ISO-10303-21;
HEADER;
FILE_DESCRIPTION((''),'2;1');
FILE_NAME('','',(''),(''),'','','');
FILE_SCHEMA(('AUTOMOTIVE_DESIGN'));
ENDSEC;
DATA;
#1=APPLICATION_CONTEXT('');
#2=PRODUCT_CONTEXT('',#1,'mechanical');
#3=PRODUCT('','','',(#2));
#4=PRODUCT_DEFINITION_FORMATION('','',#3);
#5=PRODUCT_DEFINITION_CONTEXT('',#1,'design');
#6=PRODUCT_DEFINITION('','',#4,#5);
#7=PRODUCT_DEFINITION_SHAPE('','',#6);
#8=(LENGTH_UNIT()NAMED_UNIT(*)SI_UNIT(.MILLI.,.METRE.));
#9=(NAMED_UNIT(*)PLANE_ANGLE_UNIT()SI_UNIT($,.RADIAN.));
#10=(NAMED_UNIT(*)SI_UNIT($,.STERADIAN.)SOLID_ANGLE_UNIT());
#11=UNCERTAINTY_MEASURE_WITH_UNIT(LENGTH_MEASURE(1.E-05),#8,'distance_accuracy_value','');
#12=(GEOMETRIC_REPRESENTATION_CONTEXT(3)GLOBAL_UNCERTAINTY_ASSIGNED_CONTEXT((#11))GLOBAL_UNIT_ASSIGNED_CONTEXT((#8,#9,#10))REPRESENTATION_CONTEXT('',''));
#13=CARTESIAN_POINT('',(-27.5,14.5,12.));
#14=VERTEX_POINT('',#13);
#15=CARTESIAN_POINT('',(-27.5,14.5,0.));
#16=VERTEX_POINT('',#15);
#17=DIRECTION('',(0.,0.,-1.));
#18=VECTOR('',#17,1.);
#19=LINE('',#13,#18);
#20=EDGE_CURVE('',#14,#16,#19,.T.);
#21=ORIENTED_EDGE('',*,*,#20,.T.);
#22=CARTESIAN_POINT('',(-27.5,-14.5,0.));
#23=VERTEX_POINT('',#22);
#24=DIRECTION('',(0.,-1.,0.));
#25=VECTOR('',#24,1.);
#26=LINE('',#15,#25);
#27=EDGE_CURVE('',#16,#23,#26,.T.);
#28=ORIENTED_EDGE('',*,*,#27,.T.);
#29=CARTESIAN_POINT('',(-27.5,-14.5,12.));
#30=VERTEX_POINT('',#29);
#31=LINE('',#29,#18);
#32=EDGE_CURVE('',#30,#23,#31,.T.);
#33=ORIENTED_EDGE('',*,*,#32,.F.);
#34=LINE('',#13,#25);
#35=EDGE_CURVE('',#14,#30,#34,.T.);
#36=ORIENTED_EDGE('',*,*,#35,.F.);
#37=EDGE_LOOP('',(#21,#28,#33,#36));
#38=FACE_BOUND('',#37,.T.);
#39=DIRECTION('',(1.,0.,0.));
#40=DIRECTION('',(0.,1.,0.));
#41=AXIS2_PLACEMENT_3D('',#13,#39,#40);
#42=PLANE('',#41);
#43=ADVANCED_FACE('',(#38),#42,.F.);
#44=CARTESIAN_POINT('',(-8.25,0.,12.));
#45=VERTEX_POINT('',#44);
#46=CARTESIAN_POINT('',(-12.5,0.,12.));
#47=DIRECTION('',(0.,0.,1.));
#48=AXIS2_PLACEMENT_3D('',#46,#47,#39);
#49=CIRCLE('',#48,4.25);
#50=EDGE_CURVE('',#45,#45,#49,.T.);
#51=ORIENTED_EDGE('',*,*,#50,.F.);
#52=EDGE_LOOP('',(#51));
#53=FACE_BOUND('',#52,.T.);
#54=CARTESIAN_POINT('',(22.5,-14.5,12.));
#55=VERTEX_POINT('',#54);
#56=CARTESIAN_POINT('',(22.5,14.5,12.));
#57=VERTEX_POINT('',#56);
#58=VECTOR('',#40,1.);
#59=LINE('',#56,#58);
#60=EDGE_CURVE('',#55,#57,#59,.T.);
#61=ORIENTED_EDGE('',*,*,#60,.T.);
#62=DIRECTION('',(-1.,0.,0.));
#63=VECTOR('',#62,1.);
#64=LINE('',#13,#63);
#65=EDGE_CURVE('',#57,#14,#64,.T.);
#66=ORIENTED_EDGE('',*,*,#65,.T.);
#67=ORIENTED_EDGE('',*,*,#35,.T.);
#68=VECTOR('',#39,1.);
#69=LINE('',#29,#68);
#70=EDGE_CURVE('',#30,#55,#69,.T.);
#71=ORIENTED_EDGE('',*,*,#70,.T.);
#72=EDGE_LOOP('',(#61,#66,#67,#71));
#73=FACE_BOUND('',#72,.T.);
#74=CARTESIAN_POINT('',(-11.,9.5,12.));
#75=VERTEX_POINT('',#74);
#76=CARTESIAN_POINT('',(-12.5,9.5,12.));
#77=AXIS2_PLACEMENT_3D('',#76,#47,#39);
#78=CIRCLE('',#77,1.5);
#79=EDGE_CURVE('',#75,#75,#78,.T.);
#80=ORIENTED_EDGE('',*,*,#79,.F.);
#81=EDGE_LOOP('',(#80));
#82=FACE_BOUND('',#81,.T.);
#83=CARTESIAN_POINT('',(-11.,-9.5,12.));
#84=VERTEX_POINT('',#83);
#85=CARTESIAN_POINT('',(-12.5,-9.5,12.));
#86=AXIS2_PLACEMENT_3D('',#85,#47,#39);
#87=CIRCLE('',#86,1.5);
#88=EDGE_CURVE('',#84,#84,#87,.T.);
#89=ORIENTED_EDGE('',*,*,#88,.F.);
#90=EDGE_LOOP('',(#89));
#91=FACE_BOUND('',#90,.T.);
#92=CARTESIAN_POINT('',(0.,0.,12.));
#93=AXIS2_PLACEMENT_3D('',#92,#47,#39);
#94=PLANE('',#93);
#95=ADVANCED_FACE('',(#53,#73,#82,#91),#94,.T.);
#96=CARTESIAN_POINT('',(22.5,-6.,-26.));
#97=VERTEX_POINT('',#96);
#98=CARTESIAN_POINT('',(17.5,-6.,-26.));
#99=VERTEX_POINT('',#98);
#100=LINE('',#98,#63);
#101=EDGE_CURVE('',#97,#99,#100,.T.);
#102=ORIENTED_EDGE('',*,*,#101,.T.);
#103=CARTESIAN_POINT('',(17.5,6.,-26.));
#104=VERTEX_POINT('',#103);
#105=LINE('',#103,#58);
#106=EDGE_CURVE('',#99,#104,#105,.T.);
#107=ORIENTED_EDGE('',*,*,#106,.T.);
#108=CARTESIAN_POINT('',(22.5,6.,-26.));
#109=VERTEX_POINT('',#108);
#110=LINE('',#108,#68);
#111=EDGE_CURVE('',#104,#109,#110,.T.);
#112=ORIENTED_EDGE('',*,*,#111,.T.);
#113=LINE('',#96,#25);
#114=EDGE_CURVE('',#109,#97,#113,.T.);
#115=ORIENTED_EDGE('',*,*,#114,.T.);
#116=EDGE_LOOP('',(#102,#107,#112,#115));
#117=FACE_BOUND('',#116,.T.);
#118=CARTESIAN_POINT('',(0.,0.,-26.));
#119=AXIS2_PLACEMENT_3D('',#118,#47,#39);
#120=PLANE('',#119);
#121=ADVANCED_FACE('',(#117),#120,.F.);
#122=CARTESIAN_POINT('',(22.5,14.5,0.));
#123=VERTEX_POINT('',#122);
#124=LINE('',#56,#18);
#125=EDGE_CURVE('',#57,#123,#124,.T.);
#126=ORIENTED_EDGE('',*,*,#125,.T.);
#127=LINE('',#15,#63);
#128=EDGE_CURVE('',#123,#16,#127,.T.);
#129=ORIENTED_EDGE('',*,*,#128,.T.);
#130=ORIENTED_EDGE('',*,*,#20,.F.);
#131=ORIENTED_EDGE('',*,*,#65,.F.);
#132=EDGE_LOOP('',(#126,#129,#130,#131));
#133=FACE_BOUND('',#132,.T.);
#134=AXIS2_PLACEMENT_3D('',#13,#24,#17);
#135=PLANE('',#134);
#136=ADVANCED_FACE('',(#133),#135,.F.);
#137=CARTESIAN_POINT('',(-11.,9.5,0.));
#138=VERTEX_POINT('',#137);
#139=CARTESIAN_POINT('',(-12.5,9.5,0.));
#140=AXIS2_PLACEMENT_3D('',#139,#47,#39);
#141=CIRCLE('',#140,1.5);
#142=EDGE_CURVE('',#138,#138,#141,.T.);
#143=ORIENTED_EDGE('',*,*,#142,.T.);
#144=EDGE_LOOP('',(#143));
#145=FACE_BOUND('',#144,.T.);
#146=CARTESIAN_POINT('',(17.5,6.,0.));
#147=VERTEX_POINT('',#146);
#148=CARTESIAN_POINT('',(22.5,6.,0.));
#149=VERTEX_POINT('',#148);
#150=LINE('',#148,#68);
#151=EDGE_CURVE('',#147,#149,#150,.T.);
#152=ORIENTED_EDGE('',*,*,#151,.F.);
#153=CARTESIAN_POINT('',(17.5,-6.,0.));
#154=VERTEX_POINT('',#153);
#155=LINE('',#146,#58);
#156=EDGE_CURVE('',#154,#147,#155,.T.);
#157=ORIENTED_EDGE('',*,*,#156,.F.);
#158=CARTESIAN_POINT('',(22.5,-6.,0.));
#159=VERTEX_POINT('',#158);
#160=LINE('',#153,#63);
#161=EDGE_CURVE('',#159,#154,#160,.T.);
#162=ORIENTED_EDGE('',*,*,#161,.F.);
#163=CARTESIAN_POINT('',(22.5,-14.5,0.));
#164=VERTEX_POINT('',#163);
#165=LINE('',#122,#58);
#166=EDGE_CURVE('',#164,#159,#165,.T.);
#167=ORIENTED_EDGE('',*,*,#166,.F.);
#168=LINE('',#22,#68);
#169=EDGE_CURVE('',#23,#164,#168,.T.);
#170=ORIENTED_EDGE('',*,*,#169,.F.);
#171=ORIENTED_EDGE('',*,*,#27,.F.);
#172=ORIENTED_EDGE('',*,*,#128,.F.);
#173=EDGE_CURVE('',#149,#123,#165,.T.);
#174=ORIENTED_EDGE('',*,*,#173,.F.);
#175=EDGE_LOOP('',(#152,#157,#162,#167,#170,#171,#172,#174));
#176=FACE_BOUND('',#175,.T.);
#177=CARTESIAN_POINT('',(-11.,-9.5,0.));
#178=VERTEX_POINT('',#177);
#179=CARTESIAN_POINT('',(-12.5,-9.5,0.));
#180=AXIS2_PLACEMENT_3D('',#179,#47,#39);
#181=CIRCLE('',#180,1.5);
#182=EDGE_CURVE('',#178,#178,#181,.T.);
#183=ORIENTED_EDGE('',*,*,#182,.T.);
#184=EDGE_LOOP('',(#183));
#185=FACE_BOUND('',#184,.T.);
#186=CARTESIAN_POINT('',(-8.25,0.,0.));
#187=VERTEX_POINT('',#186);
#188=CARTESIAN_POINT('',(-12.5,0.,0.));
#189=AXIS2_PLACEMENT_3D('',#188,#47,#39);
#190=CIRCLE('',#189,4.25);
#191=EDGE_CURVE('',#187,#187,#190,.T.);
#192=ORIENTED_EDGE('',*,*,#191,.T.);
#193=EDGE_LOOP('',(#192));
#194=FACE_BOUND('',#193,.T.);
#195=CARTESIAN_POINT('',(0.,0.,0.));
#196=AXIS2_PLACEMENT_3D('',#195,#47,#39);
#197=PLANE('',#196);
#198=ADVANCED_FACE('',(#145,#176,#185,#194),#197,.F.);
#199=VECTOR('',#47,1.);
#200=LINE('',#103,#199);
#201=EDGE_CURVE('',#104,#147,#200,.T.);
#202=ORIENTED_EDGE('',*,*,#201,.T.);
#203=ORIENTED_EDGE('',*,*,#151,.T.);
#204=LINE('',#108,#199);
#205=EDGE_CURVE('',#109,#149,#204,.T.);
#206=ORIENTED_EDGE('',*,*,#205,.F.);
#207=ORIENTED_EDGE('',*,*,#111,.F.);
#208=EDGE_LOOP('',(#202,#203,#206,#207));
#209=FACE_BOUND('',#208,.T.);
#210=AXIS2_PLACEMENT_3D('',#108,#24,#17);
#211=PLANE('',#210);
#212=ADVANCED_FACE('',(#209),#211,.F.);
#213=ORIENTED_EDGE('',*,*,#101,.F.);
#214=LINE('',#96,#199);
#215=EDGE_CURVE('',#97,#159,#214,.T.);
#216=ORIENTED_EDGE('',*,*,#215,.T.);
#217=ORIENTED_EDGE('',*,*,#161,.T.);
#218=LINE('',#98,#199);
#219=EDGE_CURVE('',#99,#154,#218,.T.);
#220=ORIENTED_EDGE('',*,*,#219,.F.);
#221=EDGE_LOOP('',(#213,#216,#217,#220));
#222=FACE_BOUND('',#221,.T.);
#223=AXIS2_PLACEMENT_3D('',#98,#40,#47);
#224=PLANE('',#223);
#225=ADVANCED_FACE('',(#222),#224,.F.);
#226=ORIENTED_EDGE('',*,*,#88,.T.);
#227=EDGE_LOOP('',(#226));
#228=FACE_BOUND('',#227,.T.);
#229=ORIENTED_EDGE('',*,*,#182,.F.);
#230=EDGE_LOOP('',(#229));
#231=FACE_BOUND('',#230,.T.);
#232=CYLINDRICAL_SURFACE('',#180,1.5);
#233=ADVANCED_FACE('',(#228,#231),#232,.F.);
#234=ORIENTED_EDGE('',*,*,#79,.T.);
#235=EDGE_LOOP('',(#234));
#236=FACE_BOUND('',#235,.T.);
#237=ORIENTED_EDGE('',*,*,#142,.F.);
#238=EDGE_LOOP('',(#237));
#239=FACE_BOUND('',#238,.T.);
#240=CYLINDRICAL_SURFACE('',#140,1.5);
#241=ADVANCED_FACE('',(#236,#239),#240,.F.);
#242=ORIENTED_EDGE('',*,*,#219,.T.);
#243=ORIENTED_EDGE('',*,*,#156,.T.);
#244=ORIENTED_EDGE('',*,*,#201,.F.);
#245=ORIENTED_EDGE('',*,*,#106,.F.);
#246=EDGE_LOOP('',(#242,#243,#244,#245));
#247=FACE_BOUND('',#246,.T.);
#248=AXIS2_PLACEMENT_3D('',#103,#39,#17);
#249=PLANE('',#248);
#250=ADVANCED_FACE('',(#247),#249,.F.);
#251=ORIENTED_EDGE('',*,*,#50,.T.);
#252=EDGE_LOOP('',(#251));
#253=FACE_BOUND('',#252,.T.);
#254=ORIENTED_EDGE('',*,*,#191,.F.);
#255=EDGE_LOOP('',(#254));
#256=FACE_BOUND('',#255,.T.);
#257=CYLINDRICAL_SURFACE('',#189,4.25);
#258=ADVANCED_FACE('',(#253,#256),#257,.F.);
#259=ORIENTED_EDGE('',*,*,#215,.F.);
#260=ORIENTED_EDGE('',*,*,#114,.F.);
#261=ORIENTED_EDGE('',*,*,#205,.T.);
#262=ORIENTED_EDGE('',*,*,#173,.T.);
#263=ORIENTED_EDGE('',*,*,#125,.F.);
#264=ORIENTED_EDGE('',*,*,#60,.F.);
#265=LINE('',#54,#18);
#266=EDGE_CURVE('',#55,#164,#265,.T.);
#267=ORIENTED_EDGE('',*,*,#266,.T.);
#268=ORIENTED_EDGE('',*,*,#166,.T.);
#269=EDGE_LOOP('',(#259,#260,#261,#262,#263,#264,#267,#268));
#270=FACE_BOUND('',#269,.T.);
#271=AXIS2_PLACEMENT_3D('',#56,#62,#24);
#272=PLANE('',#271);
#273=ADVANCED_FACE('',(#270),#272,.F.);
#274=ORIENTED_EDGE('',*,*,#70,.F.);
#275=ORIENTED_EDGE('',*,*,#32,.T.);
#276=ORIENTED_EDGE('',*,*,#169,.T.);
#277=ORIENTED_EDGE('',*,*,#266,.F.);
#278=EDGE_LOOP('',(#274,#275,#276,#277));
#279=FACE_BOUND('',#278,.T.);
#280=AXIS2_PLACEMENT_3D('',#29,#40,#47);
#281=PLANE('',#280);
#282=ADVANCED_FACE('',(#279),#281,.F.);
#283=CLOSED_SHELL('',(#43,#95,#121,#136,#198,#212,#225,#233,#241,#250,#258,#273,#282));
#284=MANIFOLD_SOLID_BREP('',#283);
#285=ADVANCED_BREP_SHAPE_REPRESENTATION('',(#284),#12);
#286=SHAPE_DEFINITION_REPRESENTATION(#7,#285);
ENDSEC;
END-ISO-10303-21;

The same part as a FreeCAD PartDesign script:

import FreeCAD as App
import Part
import Sketcher

V = App.Vector

doc = App.newDocument("Part")
body = doc.addObject("PartDesign::Body", "Body")

# Sketch on XY plane
sketch1 = body.newObject("Sketcher::SketchObject", "Sketch")
sketch1.AttachmentSupport = (doc.getObject("XY_Plane"), [""])
sketch1.MapMode = "FlatFace"
sketch1.addGeometry([
    Part.LineSegment(V(-28, 14, 0), V(-28, -14, 0)),
    Part.LineSegment(V(-28, -14, 0), V(22, -14, 0)),
    Part.LineSegment(V(22, -14, 0), V(22, 14, 0)),
    Part.LineSegment(V(22, 14, 0), V(-28, 14, 0)),
], False)
sketch1.addConstraint([
    Sketcher.Constraint("Coincident", 0, 2, 1, 1),
    Sketcher.Constraint("Coincident", 1, 2, 2, 1),
    Sketcher.Constraint("Coincident", 2, 2, 3, 1),
    Sketcher.Constraint("Coincident", 3, 2, 0, 1),
    Sketcher.Constraint("Vertical", 0),
    Sketcher.Constraint("Horizontal", 1),
    Sketcher.Constraint("Vertical", 2),
    Sketcher.Constraint("Horizontal", 3),
    Sketcher.Constraint("DistanceX", 1, 1, 1, 2, 50.0),
    Sketcher.Constraint("DistanceY", 0, 2, 0, 1, 29.0),
    Sketcher.Constraint("DistanceX", 0, 2, -1, 1, 27.5),
    Sketcher.Constraint("DistanceY", 0, 2, -1, 1, 14.5),
])
pad1 = body.newObject("PartDesign::Pad", "Pad")
pad1.Profile = sketch1
pad1.Length = 12

# Sketch on XY plane
sketch2 = body.newObject("Sketcher::SketchObject", "Sketch001")
sketch2.AttachmentSupport = (doc.getObject("XY_Plane"), [""])
sketch2.MapMode = "FlatFace"
sketch2.AttachmentOffset = App.Placement(V(0, 0, 12), App.Rotation())
sketch2.addGeometry(Part.Circle(V(-12.5, 0, 0), V(0, 0, 1), 4.2), False)
sketch2.addConstraint([
    Sketcher.Constraint("PointOnObject", 0, 3, -1),
    Sketcher.Constraint("Diameter", 0, 8.5),
    Sketcher.Constraint("DistanceX", 0, 3, -1, 1, 12.5),
])
pocket1 = body.newObject("PartDesign::Pocket", "Pocket")
pocket1.Profile = sketch2
pocket1.Length = 12

# Sketch on XY plane
sketch3 = body.newObject("Sketcher::SketchObject", "Sketch002")
sketch3.AttachmentSupport = (doc.getObject("XY_Plane"), [""])
sketch3.MapMode = "FlatFace"
sketch3.AttachmentOffset = App.Placement(V(0, 0, 12), App.Rotation())
sketch3.addGeometry([
    Part.Circle(V(-12.5, 9.5, 0), V(0, 0, 1), 1.5),
    Part.Circle(V(-12.5, -9.5, 0), V(0, 0, 1), 1.5),
], False)
sketch3.addConstraint([
    Sketcher.Constraint("Equal", 0, 1),
    Sketcher.Constraint("Symmetric", 0, 3, 1, 3, -1),
    Sketcher.Constraint("Diameter", 0, 3.0),
    Sketcher.Constraint("DistanceY", 1, 3, 0, 3, 19.0),
    Sketcher.Constraint("DistanceX", 0, 3, -1, 1, 12.5),
])
pocket2 = body.newObject("PartDesign::Pocket", "Pocket001")
pocket2.Profile = sketch3
pocket2.Length = 12

# Sketch on XY plane
sketch4 = body.newObject("Sketcher::SketchObject", "Sketch003")
sketch4.AttachmentSupport = (doc.getObject("XY_Plane"), [""])
sketch4.MapMode = "FlatFace"
sketch4.addGeometry([
    Part.LineSegment(V(22, 6, 0), V(22, -6, 0)),
    Part.LineSegment(V(22, -6, 0), V(18, -6, 0)),
    Part.LineSegment(V(18, -6, 0), V(18, 6, 0)),
    Part.LineSegment(V(18, 6, 0), V(22, 6, 0)),
], False)
sketch4.addConstraint([
    Sketcher.Constraint("Coincident", 0, 2, 1, 1),
    Sketcher.Constraint("Coincident", 1, 2, 2, 1),
    Sketcher.Constraint("Coincident", 2, 2, 3, 1),
    Sketcher.Constraint("Coincident", 3, 2, 0, 1),
    Sketcher.Constraint("Vertical", 0),
    Sketcher.Constraint("Horizontal", 1),
    Sketcher.Constraint("Vertical", 2),
    Sketcher.Constraint("Horizontal", 3),
    Sketcher.Constraint("DistanceX", 1, 2, 1, 1, 5.0),
    Sketcher.Constraint("DistanceY", 0, 2, 0, 1, 12.0),
    Sketcher.Constraint("DistanceY", 0, 2, -1, 1, 6.0),
    Sketcher.Constraint("DistanceX", -1, 1, 0, 2, 22.5),
])
pad2 = body.newObject("PartDesign::Pad", "Pad001")
pad2.Profile = sketch4
pad2.Length = 26
pad2.Reversed = True

doc.recompute()
